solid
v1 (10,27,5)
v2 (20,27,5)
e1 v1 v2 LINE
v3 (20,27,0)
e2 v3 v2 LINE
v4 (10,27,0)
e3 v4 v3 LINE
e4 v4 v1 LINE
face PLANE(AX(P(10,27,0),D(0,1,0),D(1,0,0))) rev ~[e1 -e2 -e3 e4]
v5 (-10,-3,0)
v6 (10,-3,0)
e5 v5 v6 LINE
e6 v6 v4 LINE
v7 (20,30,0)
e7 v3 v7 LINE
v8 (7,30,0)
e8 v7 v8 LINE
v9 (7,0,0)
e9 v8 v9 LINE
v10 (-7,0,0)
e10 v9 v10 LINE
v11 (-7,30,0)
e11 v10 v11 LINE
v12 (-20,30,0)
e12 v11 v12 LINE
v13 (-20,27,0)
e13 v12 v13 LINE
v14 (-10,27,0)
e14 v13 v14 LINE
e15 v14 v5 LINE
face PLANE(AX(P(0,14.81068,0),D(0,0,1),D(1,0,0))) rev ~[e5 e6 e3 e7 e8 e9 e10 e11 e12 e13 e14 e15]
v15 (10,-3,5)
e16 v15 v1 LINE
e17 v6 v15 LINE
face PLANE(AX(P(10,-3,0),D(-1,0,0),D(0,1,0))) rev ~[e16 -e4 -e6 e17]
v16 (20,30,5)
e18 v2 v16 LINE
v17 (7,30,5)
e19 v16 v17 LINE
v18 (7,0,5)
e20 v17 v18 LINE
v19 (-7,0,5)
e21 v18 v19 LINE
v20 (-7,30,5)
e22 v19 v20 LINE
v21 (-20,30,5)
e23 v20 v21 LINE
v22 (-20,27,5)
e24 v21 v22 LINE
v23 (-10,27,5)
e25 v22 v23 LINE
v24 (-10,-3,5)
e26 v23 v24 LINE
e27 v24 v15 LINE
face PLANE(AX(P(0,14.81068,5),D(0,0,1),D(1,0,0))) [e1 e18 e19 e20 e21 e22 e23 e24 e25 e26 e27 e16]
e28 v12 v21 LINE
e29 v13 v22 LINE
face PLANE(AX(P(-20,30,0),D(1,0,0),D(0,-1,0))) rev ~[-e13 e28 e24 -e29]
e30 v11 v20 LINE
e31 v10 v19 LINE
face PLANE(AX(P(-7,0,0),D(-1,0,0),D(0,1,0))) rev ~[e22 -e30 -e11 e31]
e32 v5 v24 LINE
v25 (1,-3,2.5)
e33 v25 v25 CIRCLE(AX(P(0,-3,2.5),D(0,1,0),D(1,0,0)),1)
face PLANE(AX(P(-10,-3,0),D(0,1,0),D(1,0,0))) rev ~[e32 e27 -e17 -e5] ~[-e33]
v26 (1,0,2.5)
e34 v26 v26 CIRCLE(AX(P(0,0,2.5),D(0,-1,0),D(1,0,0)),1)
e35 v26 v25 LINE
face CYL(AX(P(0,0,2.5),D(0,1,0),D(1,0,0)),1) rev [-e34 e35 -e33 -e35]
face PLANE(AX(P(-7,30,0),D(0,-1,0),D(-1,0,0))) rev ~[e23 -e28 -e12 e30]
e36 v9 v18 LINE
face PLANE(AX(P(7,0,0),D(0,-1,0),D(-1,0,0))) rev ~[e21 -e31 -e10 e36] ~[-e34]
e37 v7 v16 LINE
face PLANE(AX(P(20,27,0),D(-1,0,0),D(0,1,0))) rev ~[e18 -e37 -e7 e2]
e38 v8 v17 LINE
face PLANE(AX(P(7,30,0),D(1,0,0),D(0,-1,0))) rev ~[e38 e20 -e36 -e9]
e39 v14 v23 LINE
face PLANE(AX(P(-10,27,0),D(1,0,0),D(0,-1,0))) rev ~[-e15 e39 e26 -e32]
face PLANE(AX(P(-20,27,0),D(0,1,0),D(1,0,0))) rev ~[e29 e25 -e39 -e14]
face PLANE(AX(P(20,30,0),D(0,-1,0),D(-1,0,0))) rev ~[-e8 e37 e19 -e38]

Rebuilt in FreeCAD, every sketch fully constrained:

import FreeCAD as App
import Part
import Sketcher
from FreeCAD import Vector
Q = App.Units.Quantity


def add_polygon(sketch, points):
    """Adds a closed chain of lines whose ends are joined by coincident constraints."""
    first, n = sketch.GeometryCount, len(points)
    for a, b in zip(points, points[1:] + points[:1]):
        sketch.addGeometry(Part.LineSegment(App.Vector(*a, 0), App.Vector(*b, 0)), False)
    for i in range(n):
        sketch.addConstraint(Sketcher.Constraint("Coincident", first + i, 2, first + (i + 1) % n, 1))

doc = App.newDocument("Part")
body = doc.addObject("PartDesign::Body", "Body")

sketch1 = body.newObject("Sketcher::SketchObject", "Sketch")
sketch1.AttachmentSupport = (doc.getObject("XY_Plane"), [""])
sketch1.MapMode = "FlatFace"
add_polygon(sketch1, [(7, 0), (-7, 0), (-7, 30), (-20, 30), (-20, 27), (-10, 27), (-10, -3), (10, -3), (10, 27), (20, 27), (20, 30), (7, 30)])
sketch1.addConstraint([
    Sketcher.Constraint("Horizontal", 0),
    Sketcher.Constraint("Vertical", 1),
    Sketcher.Constraint("Horizontal", 2),
    Sketcher.Constraint("Vertical", 3),
    Sketcher.Constraint("Horizontal", 4),
    Sketcher.Constraint("Vertical", 5),
    Sketcher.Constraint("Horizontal", 6),
    Sketcher.Constraint("Vertical", 7),
    Sketcher.Constraint("Horizontal", 8),
    Sketcher.Constraint("Vertical", 9),
    Sketcher.Constraint("Horizontal", 10),
    Sketcher.Constraint("Vertical", 11),
    Sketcher.Constraint("Symmetric", 0, 2, 11, 2, -1, 1),
    Sketcher.Constraint("Symmetric", 4, 2, 7, 2, -2),
    Sketcher.Constraint("Symmetric", 2, 2, 9, 2, -2),
    Sketcher.Constraint("Equal", 1, 5),
    Sketcher.Constraint("DistanceX", 0, 2, 0, 1, Q("14 mm")),
    Sketcher.Constraint("DistanceX", 2, 2, 2, 1, Q("13 mm")),
    Sketcher.Constraint("DistanceX", 4, 1, 4, 2, Q("10 mm")),
    Sketcher.Constraint("DistanceY", 1, 1, 1, 2, Q("30 mm")),
    Sketcher.Constraint("DistanceY", 3, 2, 3, 1, Q("3 mm")),
])
pad1 = body.newObject("PartDesign::Pad", "Pad")
pad1.Profile = sketch1
pad1.Length = 5

sketch2 = body.newObject("Sketcher::SketchObject", "Sketch001")
sketch2.AttachmentSupport = (doc.getObject("XZ_Plane"), [""])
sketch2.MapMode = "FlatFace"
sketch2.addGeometry(Part.Circle(Vector(0, 2.5, 0), Vector(0, 0, 1), 1), False)
sketch2.addConstraint([
    Sketcher.Constraint("PointOnObject", 0, 3, -2),
    Sketcher.Constraint("Diameter", 0, Q("2 mm")),
    Sketcher.Constraint("DistanceY", -1, 1, 0, 3, Q("2.5 mm")),
])
pocket1 = body.newObject("PartDesign::Pocket", "Pocket")
pocket1.Profile = sketch2
pocket1.Type = "ThroughAll"
pocket1.Midplane = True

doc.recompute()
